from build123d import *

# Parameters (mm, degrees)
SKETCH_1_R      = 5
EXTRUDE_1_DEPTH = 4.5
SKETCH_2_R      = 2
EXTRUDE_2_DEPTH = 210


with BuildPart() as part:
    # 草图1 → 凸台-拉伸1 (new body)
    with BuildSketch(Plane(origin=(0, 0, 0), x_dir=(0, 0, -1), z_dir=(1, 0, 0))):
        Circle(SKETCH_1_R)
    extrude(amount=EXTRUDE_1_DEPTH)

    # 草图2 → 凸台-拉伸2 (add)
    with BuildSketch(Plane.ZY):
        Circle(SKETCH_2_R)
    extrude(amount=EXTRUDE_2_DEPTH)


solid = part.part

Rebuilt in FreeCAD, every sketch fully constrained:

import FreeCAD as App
import Part
import Sketcher

doc = App.newDocument("Part")
params = doc.addObject("Spreadsheet::Sheet", "Params")
for row, (alias, value) in enumerate([
    ("sketch1_diameter", "10 mm"),
    ("pad1_length", "4.5 mm"),
    ("sketch2_diameter", "4 mm"),
    ("pad2_length", "210 mm"),
], start=1):
    params.set(f"A{row}", alias)
    params.set(f"B{row}", "=" + value)
    params.setAlias(f"B{row}", alias)

body = doc.addObject("PartDesign::Body", "Body")

sketch1 = doc.addObject("Sketcher::SketchObject", "Sketch")
body.addObject(sketch1)
sketch1.AttachmentSupport = (doc.YZ_Plane, [""])
sketch1.MapMode = "FlatFace"
sketch1.addGeometry(Part.Circle(App.Vector(0, 0, 0), App.Vector(0, 0, 1), 5), False)
sketch1.addConstraint([
    Sketcher.Constraint("Coincident", 0, 3, -1, 1),
    Sketcher.Constraint("Diameter", 0, 10.0),
])
sketch1.setExpression("Constraints[1]", "Params.sketch1_diameter")
pad1 = doc.addObject("PartDesign::Pad", "Pad")
body.addObject(pad1)
pad1.Profile = sketch1
pad1.setExpression("Length", "Params.pad1_length")

sketch2 = doc.addObject("Sketcher::SketchObject", "Sketch001")
body.addObject(sketch2)
sketch2.AttachmentSupport = (doc.YZ_Plane, [""])
sketch2.MapMode = "FlatFace"
sketch2.addGeometry(Part.Circle(App.Vector(0, 0, 0), App.Vector(0, 0, 1), 2), False)
sketch2.addConstraint([
    Sketcher.Constraint("Coincident", 0, 3, -1, 1),
    Sketcher.Constraint("Diameter", 0, 4.0),
])
sketch2.setExpression("Constraints[1]", "Params.sketch2_diameter")
pad2 = doc.addObject("PartDesign::Pad", "Pad001")
body.addObject(pad2)
pad2.Profile = sketch2
pad2.setExpression("Length", "Params.pad2_length")
pad2.Reversed = True

doc.recompute()
